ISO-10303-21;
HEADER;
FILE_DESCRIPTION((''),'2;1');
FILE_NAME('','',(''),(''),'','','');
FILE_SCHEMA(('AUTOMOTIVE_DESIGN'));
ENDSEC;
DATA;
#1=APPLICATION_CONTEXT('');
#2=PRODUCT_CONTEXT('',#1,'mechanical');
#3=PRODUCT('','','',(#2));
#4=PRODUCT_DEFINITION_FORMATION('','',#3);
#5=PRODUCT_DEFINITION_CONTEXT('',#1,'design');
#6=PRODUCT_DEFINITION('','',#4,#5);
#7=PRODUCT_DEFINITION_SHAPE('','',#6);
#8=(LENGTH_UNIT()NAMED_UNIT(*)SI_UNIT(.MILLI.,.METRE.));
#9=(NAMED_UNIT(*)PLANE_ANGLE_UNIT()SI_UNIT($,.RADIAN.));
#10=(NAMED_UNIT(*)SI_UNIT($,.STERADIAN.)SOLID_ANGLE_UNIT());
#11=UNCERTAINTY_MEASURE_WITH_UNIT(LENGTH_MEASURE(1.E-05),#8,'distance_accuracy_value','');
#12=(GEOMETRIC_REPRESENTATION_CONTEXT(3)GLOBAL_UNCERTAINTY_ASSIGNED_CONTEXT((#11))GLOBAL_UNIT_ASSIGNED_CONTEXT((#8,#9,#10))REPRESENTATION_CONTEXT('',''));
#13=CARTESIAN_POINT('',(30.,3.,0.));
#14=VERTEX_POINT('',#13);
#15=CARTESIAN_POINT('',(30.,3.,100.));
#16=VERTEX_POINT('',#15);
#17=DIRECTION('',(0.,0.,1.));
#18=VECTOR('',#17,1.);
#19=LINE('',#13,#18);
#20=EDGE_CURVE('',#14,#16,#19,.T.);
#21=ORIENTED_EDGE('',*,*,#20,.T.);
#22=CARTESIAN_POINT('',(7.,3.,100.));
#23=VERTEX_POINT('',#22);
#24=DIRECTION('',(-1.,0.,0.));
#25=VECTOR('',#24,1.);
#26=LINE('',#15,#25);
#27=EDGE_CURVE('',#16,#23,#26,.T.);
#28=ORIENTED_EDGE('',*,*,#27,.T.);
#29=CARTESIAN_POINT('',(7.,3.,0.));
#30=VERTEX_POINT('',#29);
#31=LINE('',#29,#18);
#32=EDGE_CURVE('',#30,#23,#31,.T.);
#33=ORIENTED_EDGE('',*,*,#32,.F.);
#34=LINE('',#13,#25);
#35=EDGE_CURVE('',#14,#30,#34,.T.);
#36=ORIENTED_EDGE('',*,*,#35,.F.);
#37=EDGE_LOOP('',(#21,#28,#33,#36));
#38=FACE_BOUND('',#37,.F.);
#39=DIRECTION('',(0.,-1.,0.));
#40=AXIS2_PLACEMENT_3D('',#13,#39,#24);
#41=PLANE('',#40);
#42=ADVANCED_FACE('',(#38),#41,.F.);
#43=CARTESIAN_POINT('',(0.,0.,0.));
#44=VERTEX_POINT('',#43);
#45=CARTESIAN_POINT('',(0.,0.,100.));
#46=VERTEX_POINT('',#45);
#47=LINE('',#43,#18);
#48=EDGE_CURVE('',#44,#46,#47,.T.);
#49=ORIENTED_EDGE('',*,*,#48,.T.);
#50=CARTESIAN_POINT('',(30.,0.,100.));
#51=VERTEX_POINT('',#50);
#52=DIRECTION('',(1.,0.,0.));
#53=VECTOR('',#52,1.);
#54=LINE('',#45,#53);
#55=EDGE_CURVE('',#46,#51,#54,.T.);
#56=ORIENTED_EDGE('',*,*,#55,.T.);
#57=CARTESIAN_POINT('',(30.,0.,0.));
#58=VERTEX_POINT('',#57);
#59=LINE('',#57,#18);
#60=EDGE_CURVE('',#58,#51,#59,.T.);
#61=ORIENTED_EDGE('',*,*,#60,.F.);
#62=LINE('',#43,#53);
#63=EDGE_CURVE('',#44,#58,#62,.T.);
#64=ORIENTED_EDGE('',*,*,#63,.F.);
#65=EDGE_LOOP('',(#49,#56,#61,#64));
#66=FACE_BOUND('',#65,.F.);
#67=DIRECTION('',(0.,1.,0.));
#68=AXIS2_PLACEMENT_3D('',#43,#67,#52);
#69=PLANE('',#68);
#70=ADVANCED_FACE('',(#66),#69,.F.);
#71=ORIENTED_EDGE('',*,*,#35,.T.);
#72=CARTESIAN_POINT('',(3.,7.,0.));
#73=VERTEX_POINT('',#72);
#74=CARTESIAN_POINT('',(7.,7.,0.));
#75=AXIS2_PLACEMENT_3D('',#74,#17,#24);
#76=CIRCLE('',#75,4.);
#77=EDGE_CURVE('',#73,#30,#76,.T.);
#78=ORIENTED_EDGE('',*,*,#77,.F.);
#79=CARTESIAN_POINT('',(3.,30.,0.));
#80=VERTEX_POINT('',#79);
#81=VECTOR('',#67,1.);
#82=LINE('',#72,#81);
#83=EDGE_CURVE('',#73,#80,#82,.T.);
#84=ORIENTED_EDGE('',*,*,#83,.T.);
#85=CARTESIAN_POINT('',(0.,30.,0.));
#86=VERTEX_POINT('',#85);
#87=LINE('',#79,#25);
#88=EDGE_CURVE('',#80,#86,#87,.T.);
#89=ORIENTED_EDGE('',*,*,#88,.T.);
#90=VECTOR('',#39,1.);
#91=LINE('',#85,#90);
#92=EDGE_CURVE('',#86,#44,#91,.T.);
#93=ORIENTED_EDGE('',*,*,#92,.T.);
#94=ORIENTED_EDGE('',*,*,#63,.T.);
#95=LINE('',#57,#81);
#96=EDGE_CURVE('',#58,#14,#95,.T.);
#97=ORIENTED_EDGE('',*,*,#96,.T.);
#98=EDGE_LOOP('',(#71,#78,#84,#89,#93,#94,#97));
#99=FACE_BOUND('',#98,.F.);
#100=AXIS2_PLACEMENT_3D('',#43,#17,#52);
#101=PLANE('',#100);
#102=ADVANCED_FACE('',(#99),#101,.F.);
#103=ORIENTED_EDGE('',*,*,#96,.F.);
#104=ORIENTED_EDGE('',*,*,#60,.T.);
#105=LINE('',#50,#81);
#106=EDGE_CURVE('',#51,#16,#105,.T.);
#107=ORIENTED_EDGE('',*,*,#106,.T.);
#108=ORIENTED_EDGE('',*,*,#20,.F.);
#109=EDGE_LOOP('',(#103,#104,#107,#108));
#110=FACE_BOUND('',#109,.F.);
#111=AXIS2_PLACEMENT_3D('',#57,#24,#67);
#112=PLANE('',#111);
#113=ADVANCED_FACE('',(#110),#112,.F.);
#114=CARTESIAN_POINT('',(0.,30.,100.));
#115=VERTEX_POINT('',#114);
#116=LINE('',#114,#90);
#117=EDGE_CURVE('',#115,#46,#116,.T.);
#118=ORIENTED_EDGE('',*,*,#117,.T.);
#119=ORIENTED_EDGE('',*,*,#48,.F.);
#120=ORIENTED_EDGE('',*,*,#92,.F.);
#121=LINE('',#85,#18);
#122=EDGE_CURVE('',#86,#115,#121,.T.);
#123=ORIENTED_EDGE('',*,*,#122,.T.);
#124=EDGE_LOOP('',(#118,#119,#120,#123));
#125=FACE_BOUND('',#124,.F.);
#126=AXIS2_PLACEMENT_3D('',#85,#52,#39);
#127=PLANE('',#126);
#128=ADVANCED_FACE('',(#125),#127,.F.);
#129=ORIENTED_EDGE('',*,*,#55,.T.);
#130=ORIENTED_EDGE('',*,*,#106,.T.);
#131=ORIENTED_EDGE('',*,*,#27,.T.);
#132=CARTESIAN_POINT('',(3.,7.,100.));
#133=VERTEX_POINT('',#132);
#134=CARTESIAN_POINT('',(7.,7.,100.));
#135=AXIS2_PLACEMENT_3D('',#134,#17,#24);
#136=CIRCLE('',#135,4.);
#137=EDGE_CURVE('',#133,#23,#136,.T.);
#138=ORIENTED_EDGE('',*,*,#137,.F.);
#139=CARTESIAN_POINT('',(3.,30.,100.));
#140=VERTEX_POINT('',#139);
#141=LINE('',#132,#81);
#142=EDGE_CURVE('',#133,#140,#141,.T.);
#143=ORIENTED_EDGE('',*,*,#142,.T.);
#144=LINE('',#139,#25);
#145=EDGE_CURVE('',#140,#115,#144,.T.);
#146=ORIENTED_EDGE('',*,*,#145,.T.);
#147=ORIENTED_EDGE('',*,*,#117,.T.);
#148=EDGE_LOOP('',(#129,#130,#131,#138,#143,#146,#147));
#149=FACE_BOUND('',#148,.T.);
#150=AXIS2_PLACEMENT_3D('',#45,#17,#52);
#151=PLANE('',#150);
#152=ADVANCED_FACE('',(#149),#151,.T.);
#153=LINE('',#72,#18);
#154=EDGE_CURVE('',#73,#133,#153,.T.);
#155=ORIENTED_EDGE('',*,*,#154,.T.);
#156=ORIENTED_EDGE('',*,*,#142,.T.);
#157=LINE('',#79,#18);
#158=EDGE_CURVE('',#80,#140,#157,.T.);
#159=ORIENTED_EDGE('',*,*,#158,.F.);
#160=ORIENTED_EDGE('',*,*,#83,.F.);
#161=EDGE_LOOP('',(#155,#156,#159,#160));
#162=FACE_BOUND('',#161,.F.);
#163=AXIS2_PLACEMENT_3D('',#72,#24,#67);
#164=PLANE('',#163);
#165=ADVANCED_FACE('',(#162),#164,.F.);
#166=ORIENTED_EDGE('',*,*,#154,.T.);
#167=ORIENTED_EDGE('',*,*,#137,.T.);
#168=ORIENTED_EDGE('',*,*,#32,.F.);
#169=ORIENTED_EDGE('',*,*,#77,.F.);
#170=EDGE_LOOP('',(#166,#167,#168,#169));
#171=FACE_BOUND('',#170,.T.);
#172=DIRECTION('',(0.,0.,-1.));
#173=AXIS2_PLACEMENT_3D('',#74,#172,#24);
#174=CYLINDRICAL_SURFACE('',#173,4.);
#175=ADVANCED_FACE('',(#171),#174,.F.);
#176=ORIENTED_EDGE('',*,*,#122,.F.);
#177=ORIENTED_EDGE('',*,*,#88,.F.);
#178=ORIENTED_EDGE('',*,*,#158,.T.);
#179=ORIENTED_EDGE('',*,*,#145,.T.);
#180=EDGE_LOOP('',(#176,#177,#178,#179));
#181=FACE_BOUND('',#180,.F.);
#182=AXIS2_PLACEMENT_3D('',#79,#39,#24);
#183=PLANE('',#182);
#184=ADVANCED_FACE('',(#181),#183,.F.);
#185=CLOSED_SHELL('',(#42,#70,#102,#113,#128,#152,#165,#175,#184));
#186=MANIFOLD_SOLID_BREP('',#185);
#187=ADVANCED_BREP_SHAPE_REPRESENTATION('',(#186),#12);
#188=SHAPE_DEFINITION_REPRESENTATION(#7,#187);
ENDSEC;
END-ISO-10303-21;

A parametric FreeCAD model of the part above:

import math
import FreeCAD as App
import Part
import Sketcher

doc = App.newDocument("Part")
body = doc.addObject("PartDesign::Body", "Body")

sketch1 = body.newObject("Sketcher::SketchObject", "Sketch")
sketch1.AttachmentSupport = (doc.getObject("XY_Plane"), [""])
sketch1.MapMode = "FlatFace"
sketch1.addGeometry(Part.LineSegment(App.Vector(30, 0, 0), App.Vector(30, 3, 0)), False)
sketch1.addGeometry(Part.LineSegment(App.Vector(30, 3, 0), App.Vector(7, 3, 0)), False)
sketch1.addGeometry(Part.ArcOfCircle(Part.Circle(App.Vector(7, 7, 0), App.Vector(0, 0, 1), 4), math.radians(180), math.radians(270)), False)
sketch1.addGeometry(Part.LineSegment(App.Vector(3, 7, 0), App.Vector(3, 30, 0)), False)
sketch1.addGeometry(Part.LineSegment(App.Vector(3, 30, 0), App.Vector(0, 30, 0)), False)
sketch1.addGeometry(Part.LineSegment(App.Vector(0, 30, 0), App.Vector(0, 0, 0)), False)
sketch1.addGeometry(Part.LineSegment(App.Vector(0, 0, 0), App.Vector(30, 0, 0)), False)
sketch1.addConstraint(Sketcher.Constraint("Coincident", 0, 2, 1, 1))
sketch1.addConstraint(Sketcher.Constraint("Tangent", 1, 2, 2, 2))
sketch1.addConstraint(Sketcher.Constraint("Tangent", 2, 1, 3, 1))
sketch1.addConstraint(Sketcher.Constraint("Coincident", 3, 2, 4, 1))
sketch1.addConstraint(Sketcher.Constraint("Coincident", 4, 2, 5, 1))
sketch1.addConstraint(Sketcher.Constraint("Coincident", 5, 2, 6, 1))
sketch1.addConstraint(Sketcher.Constraint("Coincident", 6, 2, 0, 1))
sketch1.addConstraint(Sketcher.Constraint("Vertical", 0))
sketch1.addConstraint(Sketcher.Constraint("Horizontal", 1))
sketch1.addConstraint(Sketcher.Constraint("Vertical", 3))
sketch1.addConstraint(Sketcher.Constraint("Horizontal", 4))
sketch1.addConstraint(Sketcher.Constraint("Vertical", 5))
sketch1.addConstraint(Sketcher.Constraint("Horizontal", 6))
sketch1.addConstraint(Sketcher.Constraint("Coincident", 5, 2, -1, 1))
sketch1.addConstraint(Sketcher.Constraint("Equal", 4, 0))
sketch1.addConstraint(Sketcher.Constraint("Equal", 1, 3))
sketch1.addConstraint(Sketcher.Constraint("Radius", 2, 4.0))
sketch1.addConstraint(Sketcher.Constraint("DistanceX", 1, 2, 1, 1, 23.0))
sketch1.addConstraint(Sketcher.Constraint("DistanceX", 4, 2, 4, 1, 3.0))
pad1 = body.newObject("PartDesign::Pad", "Pad")
pad1.Profile = sketch1
pad1.Length = 100

doc.recompute()
